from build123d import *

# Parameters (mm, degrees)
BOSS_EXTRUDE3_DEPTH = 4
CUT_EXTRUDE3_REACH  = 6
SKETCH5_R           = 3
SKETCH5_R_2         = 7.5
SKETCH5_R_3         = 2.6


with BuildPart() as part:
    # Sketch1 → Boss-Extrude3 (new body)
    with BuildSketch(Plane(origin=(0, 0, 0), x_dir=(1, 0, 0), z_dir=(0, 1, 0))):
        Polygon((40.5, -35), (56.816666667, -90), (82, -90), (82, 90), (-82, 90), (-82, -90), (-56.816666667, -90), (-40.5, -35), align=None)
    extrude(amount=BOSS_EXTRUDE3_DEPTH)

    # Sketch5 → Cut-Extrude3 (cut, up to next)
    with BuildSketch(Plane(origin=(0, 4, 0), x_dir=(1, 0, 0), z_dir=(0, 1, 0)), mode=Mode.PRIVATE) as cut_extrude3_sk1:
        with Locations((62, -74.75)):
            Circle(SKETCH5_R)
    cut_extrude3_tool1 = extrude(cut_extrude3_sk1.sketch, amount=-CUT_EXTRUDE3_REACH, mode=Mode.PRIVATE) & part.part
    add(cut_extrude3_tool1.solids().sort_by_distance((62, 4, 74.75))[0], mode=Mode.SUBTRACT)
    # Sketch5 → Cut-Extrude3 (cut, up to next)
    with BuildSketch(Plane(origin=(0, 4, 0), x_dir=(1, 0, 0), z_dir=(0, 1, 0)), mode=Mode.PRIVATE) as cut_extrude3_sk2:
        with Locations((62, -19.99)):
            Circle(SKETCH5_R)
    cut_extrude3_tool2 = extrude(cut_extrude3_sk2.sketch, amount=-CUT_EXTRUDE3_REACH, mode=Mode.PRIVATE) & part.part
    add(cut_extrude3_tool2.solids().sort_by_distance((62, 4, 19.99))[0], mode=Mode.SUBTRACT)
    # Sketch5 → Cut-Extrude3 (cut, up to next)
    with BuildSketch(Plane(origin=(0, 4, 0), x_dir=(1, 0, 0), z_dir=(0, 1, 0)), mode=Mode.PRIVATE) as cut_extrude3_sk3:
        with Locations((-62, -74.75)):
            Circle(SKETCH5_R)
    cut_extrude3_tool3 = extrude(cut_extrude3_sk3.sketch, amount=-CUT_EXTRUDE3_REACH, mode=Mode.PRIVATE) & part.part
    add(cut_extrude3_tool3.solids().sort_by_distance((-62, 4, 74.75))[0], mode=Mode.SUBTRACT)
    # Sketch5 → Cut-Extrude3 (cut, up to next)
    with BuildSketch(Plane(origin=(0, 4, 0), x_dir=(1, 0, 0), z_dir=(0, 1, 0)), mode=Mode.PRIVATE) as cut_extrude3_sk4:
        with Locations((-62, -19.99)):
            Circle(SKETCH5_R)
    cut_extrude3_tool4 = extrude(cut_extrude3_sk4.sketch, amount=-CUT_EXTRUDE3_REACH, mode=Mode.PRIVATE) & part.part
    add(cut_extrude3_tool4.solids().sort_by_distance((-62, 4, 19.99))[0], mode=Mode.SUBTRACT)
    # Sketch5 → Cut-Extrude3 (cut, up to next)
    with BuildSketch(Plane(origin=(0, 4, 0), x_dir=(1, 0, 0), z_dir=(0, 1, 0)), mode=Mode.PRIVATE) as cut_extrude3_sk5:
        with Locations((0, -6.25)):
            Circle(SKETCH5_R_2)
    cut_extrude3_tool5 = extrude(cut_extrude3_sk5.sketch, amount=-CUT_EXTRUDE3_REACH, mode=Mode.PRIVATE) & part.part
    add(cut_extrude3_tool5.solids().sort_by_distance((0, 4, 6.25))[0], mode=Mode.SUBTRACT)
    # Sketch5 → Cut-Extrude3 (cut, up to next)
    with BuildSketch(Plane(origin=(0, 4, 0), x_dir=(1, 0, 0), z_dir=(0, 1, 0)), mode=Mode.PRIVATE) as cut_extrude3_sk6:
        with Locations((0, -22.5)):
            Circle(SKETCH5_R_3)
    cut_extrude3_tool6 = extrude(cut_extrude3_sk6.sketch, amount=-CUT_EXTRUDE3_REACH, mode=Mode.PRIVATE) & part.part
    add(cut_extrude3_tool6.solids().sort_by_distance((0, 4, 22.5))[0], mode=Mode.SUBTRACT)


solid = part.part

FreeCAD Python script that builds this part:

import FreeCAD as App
import Part
import Sketcher
from FreeCAD import Vector
Q = App.Units.Quantity


def add_polygon(sketch, points):
    """Adds a closed chain of lines whose ends are joined by coincident constraints."""
    first, n = sketch.GeometryCount, len(points)
    for a, b in zip(points, points[1:] + points[:1]):
        sketch.addGeometry(Part.LineSegment(App.Vector(*a, 0), App.Vector(*b, 0)), False)
    for i in range(n):
        sketch.addConstraint(Sketcher.Constraint("Coincident", first + i, 2, first + (i + 1) % n, 1))

doc = App.newDocument("Part")
body = doc.addObject("PartDesign::Body", "Body")

# Sketch on XZ plane
sketch1 = doc.addObject("Sketcher::SketchObject", "Sketch")
body.addObject(sketch1)
sketch1.AttachmentSupport = (doc.XZ_Plane, [""])
sketch1.MapMode = "FlatFace"
add_polygon(sketch1, [(40, 35), (57, 90), (82, 90), (82, -90), (-82, -90), (-82, 90), (-57, 90), (-40, 35)])  # lines 0-7
sketch1.addConstraint([
    Sketcher.Constraint("Horizontal", 1),
    Sketcher.Constraint("Vertical", 2),
    Sketcher.Constraint("Horizontal", 3),
    Sketcher.Constraint("Vertical", 4),
    Sketcher.Constraint("Horizontal", 5),
    Sketcher.Constraint("Horizontal", 7),
    Sketcher.Constraint("Symmetric", 1, 2, 3, 2, -1, 1),
    Sketcher.Constraint("Symmetric", 0, 2, 5, 2, -2),
    Sketcher.Constraint("Equal", 0, 6),
    Sketcher.Constraint("DistanceX", 3, 2, 3, 1, Q("164 mm")),
    Sketcher.Constraint("DistanceX", 7, 1, 7, 2, Q("81 mm")),
    Sketcher.Constraint("DistanceY", 2, 2, 2, 1, Q("180 mm")),
    Sketcher.Constraint("DistanceY", -1, 1, 6, 2, Q("35 mm")),
    Sketcher.Constraint("DistanceX", 1, 1, 1, 2, Q("25.183333 mm")),
])
pad1 = doc.addObject("PartDesign::Pad", "Pad")
body.addObject(pad1)
pad1.Profile = sketch1
pad1.Length = 4
pad1.Reversed = True

# Sketch on XZ plane
sketch2 = doc.addObject("Sketcher::SketchObject", "Sketch001")
body.addObject(sketch2)
sketch2.AttachmentSupport = (doc.XZ_Plane, [""])
sketch2.MapMode = "FlatFace"
sketch2.AttachmentOffset = App.Placement(Vector(0, 0, -4), App.Rotation())
sketch2.addGeometry(Part.Circle(Vector(62, 74.8, 0), Vector(0, 0, 1), 3), False)
sketch2.addConstraint([
    Sketcher.Constraint("Diameter", 0, Q("6 mm")),
    Sketcher.Constraint("DistanceX", -1, 1, 0, 3, Q("62 mm")),
    Sketcher.Constraint("DistanceY", -1, 1, 0, 3, Q("74.75 mm")),
])
pocket1 = doc.addObject("PartDesign::Pocket", "Pocket")
body.addObject(pocket1)
pocket1.Profile = sketch2
pocket1.Type = "UpToFirst"
pocket1.Reversed = True

# Sketch on XZ plane
sketch3 = doc.addObject("Sketcher::SketchObject", "Sketch002")
body.addObject(sketch3)
sketch3.AttachmentSupport = (doc.XZ_Plane, [""])
sketch3.MapMode = "FlatFace"
sketch3.AttachmentOffset = App.Placement(Vector(0, 0, -4), App.Rotation())
sketch3.addGeometry(Part.Circle(Vector(62, 20, 0), Vector(0, 0, 1), 3), False)
sketch3.addConstraint([
    Sketcher.Constraint("Diameter", 0, Q("6 mm")),
    Sketcher.Constraint("DistanceX", -1, 1, 0, 3, Q("62 mm")),
    Sketcher.Constraint("DistanceY", -1, 1, 0, 3, Q("19.99 mm")),
])
pocket2 = doc.addObject("PartDesign::Pocket", "Pocket001")
body.addObject(pocket2)
pocket2.Profile = sketch3
pocket2.Type = "UpToFirst"
pocket2.Reversed = True

# Sketch on XZ plane
sketch4 = doc.addObject("Sketcher::SketchObject", "Sketch003")
body.addObject(sketch4)
sketch4.AttachmentSupport = (doc.XZ_Plane, [""])
sketch4.MapMode = "FlatFace"
sketch4.AttachmentOffset = App.Placement(Vector(0, 0, -4), App.Rotation())
sketch4.addGeometry(Part.Circle(Vector(-62, 74.8, 0), Vector(0, 0, 1), 3), False)
sketch4.addConstraint([
    Sketcher.Constraint("Diameter", 0, Q("6 mm")),
    Sketcher.Constraint("DistanceX", 0, 3, -1, 1, Q("62 mm")),
    Sketcher.Constraint("DistanceY", -1, 1, 0, 3, Q("74.75 mm")),
])
pocket3 = doc.addObject("PartDesign::Pocket", "Pocket002")
body.addObject(pocket3)
pocket3.Profile = sketch4
pocket3.Type = "UpToFirst"
pocket3.Reversed = True

# Sketch on XZ plane
sketch5 = doc.addObject("Sketcher::SketchObject", "Sketch004")
body.addObject(sketch5)
sketch5.AttachmentSupport = (doc.XZ_Plane, [""])
sketch5.MapMode = "FlatFace"
sketch5.AttachmentOffset = App.Placement(Vector(0, 0, -4), App.Rotation())
sketch5.addGeometry(Part.Circle(Vector(-62, 20, 0), Vector(0, 0, 1), 3), False)
sketch5.addConstraint([
    Sketcher.Constraint("Diameter", 0, Q("6 mm")),
    Sketcher.Constraint("DistanceX", 0, 3, -1, 1, Q("62 mm")),
    Sketcher.Constraint("DistanceY", -1, 1, 0, 3, Q("19.99 mm")),
])
pocket4 = doc.addObject("PartDesign::Pocket", "Pocket003")
body.addObject(pocket4)
pocket4.Profile = sketch5
pocket4.Type = "UpToFirst"
pocket4.Reversed = True

# Sketch on XZ plane
sketch6 = doc.addObject("Sketcher::SketchObject", "Sketch005")
body.addObject(sketch6)
sketch6.AttachmentSupport = (doc.XZ_Plane, [""])
sketch6.MapMode = "FlatFace"
sketch6.AttachmentOffset = App.Placement(Vector(0, 0, -4), App.Rotation())
sketch6.addGeometry(Part.Circle(Vector(0, 6, 0), Vector(0, 0, 1), 8), False)
sketch6.addConstraint([
    Sketcher.Constraint("PointOnObject", 0, 3, -2),
    Sketcher.Constraint("Diameter", 0, Q("15 mm")),
    Sketcher.Constraint("DistanceY", -1, 1, 0, 3, Q("6.25 mm")),
])
pocket5 = doc.addObject("PartDesign::Pocket", "Pocket004")
body.addObject(pocket5)
pocket5.Profile = sketch6
pocket5.Type = "UpToFirst"
pocket5.Reversed = True

# Sketch on XZ plane
sketch7 = doc.addObject("Sketcher::SketchObject", "Sketch006")
body.addObject(sketch7)
sketch7.AttachmentSupport = (doc.XZ_Plane, [""])
sketch7.MapMode = "FlatFace"
sketch7.AttachmentOffset = App.Placement(Vector(0, 0, -4), App.Rotation())
sketch7.addGeometry(Part.Circle(Vector(0, 22.5, 0), Vector(0, 0, 1), 2.6), False)
sketch7.addConstraint([
    Sketcher.Constraint("PointOnObject", 0, 3, -2),
    Sketcher.Constraint("Diameter", 0, Q("5.2 mm")),
    Sketcher.Constraint("DistanceY", -1, 1, 0, 3, Q("22.5 mm")),
])
pocket6 = doc.addObject("PartDesign::Pocket", "Pocket005")
body.addObject(pocket6)
pocket6.Profile = sketch7
pocket6.Type = "UpToFirst"
pocket6.Reversed = True

doc.recompute()
